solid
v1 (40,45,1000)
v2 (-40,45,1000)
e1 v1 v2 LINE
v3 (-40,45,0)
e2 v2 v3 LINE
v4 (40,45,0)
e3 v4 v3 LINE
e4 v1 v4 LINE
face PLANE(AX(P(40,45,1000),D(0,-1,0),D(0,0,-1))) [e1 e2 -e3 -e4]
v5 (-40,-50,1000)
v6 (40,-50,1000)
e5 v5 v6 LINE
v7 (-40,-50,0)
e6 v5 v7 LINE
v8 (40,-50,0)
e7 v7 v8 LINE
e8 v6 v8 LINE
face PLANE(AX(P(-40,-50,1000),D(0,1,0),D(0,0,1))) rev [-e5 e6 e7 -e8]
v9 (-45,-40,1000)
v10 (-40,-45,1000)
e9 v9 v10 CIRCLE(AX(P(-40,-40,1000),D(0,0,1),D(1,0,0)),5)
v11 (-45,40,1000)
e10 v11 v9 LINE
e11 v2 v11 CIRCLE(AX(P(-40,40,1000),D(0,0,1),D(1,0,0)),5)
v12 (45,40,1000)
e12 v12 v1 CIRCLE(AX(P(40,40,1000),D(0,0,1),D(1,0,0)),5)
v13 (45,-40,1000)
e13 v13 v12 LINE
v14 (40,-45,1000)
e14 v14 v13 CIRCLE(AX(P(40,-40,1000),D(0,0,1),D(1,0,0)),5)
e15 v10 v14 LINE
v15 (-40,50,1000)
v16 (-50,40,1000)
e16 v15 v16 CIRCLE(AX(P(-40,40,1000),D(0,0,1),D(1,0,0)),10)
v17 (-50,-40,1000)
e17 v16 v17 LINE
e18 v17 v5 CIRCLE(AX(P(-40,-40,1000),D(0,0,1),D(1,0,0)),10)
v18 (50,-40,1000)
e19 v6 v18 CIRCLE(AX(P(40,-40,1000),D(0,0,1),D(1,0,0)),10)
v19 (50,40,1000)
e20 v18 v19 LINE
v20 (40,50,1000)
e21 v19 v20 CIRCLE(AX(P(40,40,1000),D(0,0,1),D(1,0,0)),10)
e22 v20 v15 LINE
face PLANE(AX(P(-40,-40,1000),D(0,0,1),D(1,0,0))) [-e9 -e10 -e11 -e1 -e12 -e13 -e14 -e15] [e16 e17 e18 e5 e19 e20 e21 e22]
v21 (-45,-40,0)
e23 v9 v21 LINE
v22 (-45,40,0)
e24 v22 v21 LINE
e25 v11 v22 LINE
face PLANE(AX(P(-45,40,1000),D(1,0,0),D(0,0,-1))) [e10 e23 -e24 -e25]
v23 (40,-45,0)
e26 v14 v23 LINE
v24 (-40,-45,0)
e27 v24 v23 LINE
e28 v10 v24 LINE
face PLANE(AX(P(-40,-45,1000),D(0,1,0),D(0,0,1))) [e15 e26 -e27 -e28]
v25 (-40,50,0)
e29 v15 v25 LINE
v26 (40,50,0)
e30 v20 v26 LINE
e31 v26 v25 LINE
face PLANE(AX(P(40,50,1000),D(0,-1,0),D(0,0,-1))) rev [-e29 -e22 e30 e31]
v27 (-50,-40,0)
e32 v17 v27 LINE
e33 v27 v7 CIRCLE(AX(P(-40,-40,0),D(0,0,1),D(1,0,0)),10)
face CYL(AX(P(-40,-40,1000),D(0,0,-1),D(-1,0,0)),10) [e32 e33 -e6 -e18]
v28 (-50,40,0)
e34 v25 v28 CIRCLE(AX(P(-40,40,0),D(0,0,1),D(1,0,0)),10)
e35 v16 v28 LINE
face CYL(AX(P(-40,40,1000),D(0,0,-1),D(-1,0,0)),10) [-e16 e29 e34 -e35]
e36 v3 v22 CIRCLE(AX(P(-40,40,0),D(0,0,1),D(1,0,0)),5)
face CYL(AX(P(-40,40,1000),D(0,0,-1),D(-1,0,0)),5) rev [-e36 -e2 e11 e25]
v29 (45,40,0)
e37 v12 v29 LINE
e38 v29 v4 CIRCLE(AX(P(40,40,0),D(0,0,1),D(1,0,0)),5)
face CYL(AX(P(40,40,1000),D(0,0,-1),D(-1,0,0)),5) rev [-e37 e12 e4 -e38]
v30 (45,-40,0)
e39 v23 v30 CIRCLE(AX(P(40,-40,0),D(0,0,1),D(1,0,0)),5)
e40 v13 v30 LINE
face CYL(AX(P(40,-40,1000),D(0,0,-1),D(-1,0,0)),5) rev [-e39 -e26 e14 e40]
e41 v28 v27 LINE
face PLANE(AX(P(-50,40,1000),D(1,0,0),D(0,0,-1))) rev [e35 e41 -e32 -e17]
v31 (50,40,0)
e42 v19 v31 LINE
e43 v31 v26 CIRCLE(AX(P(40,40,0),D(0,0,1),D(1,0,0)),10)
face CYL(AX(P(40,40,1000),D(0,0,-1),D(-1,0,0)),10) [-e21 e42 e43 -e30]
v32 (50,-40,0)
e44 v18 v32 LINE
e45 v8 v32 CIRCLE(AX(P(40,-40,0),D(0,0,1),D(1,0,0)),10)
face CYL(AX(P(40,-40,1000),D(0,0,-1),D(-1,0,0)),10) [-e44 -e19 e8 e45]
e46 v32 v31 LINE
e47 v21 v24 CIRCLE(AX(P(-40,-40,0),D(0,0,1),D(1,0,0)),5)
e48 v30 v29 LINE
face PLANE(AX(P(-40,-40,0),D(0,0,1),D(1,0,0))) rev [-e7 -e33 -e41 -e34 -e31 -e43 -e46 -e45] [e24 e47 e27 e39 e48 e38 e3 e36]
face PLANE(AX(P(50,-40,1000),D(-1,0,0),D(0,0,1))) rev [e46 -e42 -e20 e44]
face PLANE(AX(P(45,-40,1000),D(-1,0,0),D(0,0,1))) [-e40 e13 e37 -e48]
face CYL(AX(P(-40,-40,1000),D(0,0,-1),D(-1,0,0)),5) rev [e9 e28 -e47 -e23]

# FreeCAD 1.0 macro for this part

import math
import FreeCAD as App
import Part
import Sketcher

V = App.Vector

doc = App.newDocument("Part")
body = doc.addObject("PartDesign::Body", "Body")

# Sketch on XY plane
sketch1 = doc.addObject("Sketcher::SketchObject", "Sketch")
body.addObject(sketch1)
sketch1.AttachmentSupport = (doc.XY_Plane, [""])
sketch1.MapMode = "FlatFace"
sketch1.addGeometry([
    Part.LineSegment(V(-40, -50, 0), V(40, -50, 0)),  # 0
    Part.ArcOfCircle(Part.Circle(V(40, -40, 0), V(0, 0, 1), 10), math.radians(-90), math.radians(0)),  # 1
    Part.LineSegment(V(50, -40, 0), V(50, 40, 0)),  # 2
    Part.ArcOfCircle(Part.Circle(V(40, 40, 0), V(0, 0, 1), 10), math.radians(0), math.radians(90)),  # 3
    Part.LineSegment(V(40, 50, 0), V(-40, 50, 0)),  # 4
    Part.ArcOfCircle(Part.Circle(V(-40, 40, 0), V(0, 0, 1), 10), math.radians(90), math.radians(180)),  # 5
    Part.LineSegment(V(-50, 40, 0), V(-50, -40, 0)),  # 6
    Part.ArcOfCircle(Part.Circle(V(-40, -40, 0), V(0, 0, 1), 10), math.radians(180), math.radians(270)),  # 7
    Part.LineSegment(V(40, -45, 0), V(-40, -45, 0)),  # 8
    Part.ArcOfCircle(Part.Circle(V(-40, -40, 0), V(0, 0, 1), 5), math.radians(180), math.radians(270)),  # 9
    Part.LineSegment(V(-45, -40, 0), V(-45, 40, 0)),  # 10
    Part.ArcOfCircle(Part.Circle(V(-40, 40, 0), V(0, 0, 1), 5), math.radians(90), math.radians(180)),  # 11
    Part.LineSegment(V(-40, 45, 0), V(40, 45, 0)),  # 12
    Part.ArcOfCircle(Part.Circle(V(40, 40, 0), V(0, 0, 1), 5), math.radians(0), math.radians(90)),  # 13
    Part.LineSegment(V(45, 40, 0), V(45, -40, 0)),  # 14
    Part.ArcOfCircle(Part.Circle(V(40, -40, 0), V(0, 0, 1), 5), math.radians(-90), math.radians(0)),  # 15
], False)
sketch1.addConstraint([
    Sketcher.Constraint("Tangent", 0, 2, 1, 1),
    Sketcher.Constraint("Tangent", 1, 2, 2, 1),
    Sketcher.Constraint("Tangent", 2, 2, 3, 1),
    Sketcher.Constraint("Tangent", 3, 2, 4, 1),
    Sketcher.Constraint("Tangent", 4, 2, 5, 1),
    Sketcher.Constraint("Tangent", 5, 2, 6, 1),
    Sketcher.Constraint("Tangent", 6, 2, 7, 1),
    Sketcher.Constraint("Tangent", 7, 2, 0, 1),
    Sketcher.Constraint("Tangent", 8, 2, 9, 2),
    Sketcher.Constraint("Tangent", 9, 1, 10, 1),
    Sketcher.Constraint("Tangent", 10, 2, 11, 2),
    Sketcher.Constraint("Tangent", 11, 1, 12, 1),
    Sketcher.Constraint("Tangent", 12, 2, 13, 2),
    Sketcher.Constraint("Tangent", 13, 1, 14, 1),
    Sketcher.Constraint("Tangent", 14, 2, 15, 2),
    Sketcher.Constraint("Tangent", 15, 1, 8, 1),
    Sketcher.Constraint("Horizontal", 0),
    Sketcher.Constraint("Vertical", 2),
    Sketcher.Constraint("Horizontal", 4),
    Sketcher.Constraint("Vertical", 6),
    Sketcher.Constraint("Horizontal", 8),
    Sketcher.Constraint("Vertical", 10),
    Sketcher.Constraint("Horizontal", 12),
    Sketcher.Constraint("Vertical", 14),
    Sketcher.Constraint("Coincident", 9, 3, 7, 3),
    Sketcher.Constraint("Coincident", 11, 3, 5, 3),
    Sketcher.Constraint("Coincident", 13, 3, 3, 3),
    Sketcher.Constraint("Equal", 1, 3),
    Sketcher.Constraint("Equal", 3, 5),
    Sketcher.Constraint("Equal", 5, 7),
    Sketcher.Constraint("Equal", 13, 15),
    Sketcher.Constraint("Symmetric", 1, 3, 5, 3, -1, 1),
    Sketcher.Constraint("Equal", 12, 2),
    Sketcher.Constraint("Radius", 1, 10.0),
    Sketcher.Constraint("Radius", 9, 5.0),
    Sketcher.Constraint("DistanceX", 0, 1, 0, 2, 80.0),
])
pad1 = doc.addObject("PartDesign::Pad", "Pad")
body.addObject(pad1)
pad1.Profile = sketch1
pad1.Length = 1000

doc.recompute()
